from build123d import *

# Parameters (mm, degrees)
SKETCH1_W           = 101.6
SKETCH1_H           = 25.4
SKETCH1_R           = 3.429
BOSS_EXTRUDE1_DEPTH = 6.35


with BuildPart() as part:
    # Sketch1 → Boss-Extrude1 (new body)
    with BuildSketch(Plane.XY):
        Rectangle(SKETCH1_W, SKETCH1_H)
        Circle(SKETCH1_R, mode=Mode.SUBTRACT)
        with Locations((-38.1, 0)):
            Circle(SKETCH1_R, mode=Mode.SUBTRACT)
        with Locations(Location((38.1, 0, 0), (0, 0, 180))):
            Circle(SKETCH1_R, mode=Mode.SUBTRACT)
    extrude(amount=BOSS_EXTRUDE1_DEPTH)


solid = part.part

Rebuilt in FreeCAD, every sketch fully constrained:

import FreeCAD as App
import Part
import Sketcher
Q = App.Units.Quantity

doc = App.newDocument("Part")
body = doc.addObject("PartDesign::Body", "Body")

sketch1 = doc.addObject("Sketcher::SketchObject", "Sketch")
body.addObject(sketch1)
sketch1.AttachmentSupport = (doc.XY_Plane, [""])
sketch1.MapMode = "FlatFace"
sketch1.addGeometry([
    Part.LineSegment(App.Vector(-50.8, 12.7, 0), App.Vector(-50.8, -12.7, 0)),
    Part.LineSegment(App.Vector(-50.8, -12.7, 0), App.Vector(50.8, -12.7, 0)),
    Part.LineSegment(App.Vector(50.8, -12.7, 0), App.Vector(50.8, 12.7, 0)),
    Part.LineSegment(App.Vector(50.8, 12.7, 0), App.Vector(-50.8, 12.7, 0)),
    Part.Circle(App.Vector(-38.1, 0, 0), App.Vector(0, 0, 1), 3.4),
    Part.Circle(App.Vector(0, 0, 0), App.Vector(0, 0, 1), 3.4),
    Part.Circle(App.Vector(38.1, 0, 0), App.Vector(0, 0, 1), 3.4),
], False)
sketch1.addConstraint([
    Sketcher.Constraint("Coincident", 0, 2, 1, 1),
    Sketcher.Constraint("Coincident", 1, 2, 2, 1),
    Sketcher.Constraint("Coincident", 2, 2, 3, 1),
    Sketcher.Constraint("Coincident", 3, 2, 0, 1),
    Sketcher.Constraint("Vertical", 0),
    Sketcher.Constraint("Horizontal", 1),
    Sketcher.Constraint("Vertical", 2),
    Sketcher.Constraint("Horizontal", 3),
    Sketcher.Constraint("Coincident", 5, 3, -1, 1),
    Sketcher.Constraint("Equal", 4, 5),
    Sketcher.Constraint("Equal", 5, 6),
    Sketcher.Constraint("Symmetric", 4, 3, 6, 3, -1, 1),
    Sketcher.Constraint("Symmetric", 0, 2, 2, 2, -1, 1),
    Sketcher.Constraint("PointOnObject", 4, 3, -1),
    Sketcher.Constraint("Diameter", 4, Q("0.27 in")),
    Sketcher.Constraint("DistanceX", 1, 1, 1, 2, Q("4 in")),
    Sketcher.Constraint("DistanceY", 0, 2, 0, 1, Q("1 in")),
    Sketcher.Constraint("DistanceX", 4, 3, 6, 3, Q("3 in")),
])
pad1 = doc.addObject("PartDesign::Pad", "Pad")
body.addObject(pad1)
pad1.Profile = sketch1
pad1.Length = Q("0.25 in")

doc.recompute()
